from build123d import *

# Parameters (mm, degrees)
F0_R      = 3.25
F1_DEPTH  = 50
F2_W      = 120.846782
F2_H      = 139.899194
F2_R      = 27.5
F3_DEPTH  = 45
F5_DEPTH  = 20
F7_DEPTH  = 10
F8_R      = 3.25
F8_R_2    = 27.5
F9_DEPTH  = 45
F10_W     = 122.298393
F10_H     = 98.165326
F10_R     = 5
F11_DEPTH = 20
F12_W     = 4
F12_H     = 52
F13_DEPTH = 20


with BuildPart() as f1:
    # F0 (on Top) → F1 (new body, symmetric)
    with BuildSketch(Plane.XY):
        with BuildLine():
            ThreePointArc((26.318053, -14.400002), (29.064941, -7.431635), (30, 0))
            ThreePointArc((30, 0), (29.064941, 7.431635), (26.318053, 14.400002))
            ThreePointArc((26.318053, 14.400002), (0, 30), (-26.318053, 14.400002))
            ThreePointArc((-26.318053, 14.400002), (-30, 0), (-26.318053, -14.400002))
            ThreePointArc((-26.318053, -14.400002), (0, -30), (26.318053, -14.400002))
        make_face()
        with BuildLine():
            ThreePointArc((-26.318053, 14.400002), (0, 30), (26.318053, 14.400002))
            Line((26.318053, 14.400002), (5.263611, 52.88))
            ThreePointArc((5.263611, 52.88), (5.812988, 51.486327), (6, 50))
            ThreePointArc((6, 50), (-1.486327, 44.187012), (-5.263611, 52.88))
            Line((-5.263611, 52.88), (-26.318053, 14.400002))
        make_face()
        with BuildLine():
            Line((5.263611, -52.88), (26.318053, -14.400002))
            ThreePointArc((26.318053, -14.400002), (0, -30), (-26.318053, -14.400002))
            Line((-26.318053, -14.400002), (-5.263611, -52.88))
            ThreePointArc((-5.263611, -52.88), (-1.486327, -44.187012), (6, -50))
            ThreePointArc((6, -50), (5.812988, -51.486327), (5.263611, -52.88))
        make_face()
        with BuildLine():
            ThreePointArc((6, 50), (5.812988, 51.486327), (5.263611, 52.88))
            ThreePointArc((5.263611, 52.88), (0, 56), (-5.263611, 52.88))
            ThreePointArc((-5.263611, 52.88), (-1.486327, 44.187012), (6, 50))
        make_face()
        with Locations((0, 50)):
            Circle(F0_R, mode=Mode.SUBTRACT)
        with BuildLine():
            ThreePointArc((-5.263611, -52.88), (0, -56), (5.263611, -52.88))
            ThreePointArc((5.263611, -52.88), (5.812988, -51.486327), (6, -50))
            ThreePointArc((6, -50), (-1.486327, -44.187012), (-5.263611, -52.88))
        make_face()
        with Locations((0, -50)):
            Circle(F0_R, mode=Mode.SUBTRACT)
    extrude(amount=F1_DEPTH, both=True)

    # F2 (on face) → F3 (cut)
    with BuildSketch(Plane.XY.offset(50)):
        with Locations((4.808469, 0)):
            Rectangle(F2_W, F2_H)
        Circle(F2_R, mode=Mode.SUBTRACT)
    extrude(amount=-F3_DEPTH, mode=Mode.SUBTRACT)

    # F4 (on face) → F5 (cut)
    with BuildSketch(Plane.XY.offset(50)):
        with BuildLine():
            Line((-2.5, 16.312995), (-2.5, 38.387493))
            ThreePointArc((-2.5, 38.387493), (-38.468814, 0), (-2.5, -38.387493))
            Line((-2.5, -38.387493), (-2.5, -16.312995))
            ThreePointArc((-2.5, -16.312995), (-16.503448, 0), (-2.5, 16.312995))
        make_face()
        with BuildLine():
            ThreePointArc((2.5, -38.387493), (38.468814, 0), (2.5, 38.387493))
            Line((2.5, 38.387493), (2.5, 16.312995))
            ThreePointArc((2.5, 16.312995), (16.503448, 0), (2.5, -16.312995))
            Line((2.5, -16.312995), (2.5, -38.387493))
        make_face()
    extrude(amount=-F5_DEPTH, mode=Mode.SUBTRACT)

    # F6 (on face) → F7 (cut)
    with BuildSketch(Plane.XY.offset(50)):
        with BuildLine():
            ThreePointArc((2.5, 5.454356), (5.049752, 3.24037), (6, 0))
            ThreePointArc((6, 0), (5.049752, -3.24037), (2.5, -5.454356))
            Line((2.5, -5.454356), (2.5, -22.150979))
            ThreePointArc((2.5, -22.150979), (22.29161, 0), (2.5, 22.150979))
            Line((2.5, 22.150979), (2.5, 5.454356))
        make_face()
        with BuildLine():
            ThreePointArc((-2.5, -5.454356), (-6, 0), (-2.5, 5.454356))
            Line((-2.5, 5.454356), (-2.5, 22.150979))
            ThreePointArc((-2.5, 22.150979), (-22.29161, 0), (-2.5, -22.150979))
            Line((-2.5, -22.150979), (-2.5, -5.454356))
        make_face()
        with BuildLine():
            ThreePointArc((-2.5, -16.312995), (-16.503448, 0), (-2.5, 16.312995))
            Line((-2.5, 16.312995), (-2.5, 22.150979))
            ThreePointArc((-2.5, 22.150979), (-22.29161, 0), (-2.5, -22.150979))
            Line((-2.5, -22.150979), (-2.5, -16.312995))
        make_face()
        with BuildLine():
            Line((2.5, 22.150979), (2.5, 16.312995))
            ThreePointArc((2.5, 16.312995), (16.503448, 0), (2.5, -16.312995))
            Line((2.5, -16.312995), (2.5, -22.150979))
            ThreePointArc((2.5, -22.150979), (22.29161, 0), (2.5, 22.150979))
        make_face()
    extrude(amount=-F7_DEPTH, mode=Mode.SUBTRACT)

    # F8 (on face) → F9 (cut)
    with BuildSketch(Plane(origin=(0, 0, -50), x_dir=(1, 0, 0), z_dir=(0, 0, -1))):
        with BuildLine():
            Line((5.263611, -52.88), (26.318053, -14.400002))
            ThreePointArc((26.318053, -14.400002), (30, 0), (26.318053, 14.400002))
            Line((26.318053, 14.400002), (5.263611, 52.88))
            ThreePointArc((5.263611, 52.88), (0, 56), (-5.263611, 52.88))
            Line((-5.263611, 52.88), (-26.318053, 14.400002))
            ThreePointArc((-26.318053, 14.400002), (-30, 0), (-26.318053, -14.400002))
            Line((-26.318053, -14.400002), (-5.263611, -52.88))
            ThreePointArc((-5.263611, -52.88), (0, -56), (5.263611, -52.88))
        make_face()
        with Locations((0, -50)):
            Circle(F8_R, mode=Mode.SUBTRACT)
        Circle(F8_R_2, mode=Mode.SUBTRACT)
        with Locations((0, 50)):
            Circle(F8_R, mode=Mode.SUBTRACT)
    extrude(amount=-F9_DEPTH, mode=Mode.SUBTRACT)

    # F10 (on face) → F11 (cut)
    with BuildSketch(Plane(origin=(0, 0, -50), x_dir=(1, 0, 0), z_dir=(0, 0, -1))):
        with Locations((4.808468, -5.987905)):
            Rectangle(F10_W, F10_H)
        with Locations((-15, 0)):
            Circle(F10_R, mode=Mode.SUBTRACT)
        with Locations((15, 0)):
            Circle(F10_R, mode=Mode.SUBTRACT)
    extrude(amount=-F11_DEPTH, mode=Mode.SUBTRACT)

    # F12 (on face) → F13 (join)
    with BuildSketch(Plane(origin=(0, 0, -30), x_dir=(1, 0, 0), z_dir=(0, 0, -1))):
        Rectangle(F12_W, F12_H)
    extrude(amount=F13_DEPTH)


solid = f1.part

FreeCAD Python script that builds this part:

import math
import FreeCAD as App
import Part
import Sketcher

doc = App.newDocument("Part")
body = doc.addObject("PartDesign::Body", "Body")

# Sketch on XY plane
sketch1 = body.newObject("Sketcher::SketchObject", "Sketch")
sketch1.AttachmentSupport = (doc.getObject("XY_Plane"), [""])
sketch1.MapMode = "FlatFace"
sketch1.addGeometry([
    Part.ArcOfCircle(Part.Circle(App.Vector(0.000005, 0, 0), App.Vector(0, 0, 1), 29.999995), math.radians(-28.685411), math.radians(0)),  # 0
    Part.ArcOfCircle(Part.Circle(App.Vector(0.000005, 0, 0), App.Vector(0, 0, 1), 29.999995), math.radians(0), math.radians(28.685411)),  # 1
    Part.LineSegment(App.Vector(26.318053, 14.400002, 0), App.Vector(5.263611, 52.88, 0)),  # 2
    Part.ArcOfCircle(Part.Circle(App.Vector(0, 50, 0), App.Vector(0, 0, 1), 6), math.radians(28.685403), math.radians(151.314597)),  # 3
    Part.LineSegment(App.Vector(-5.263611, 52.88, 0), App.Vector(-26.318053, 14.400002, 0)),  # 4
    Part.ArcOfCircle(Part.Circle(App.Vector(-0.000004, 0, 0), App.Vector(0, 0, 1), 29.999996), math.radians(151.31459), math.radians(208.68541)),  # 5
    Part.LineSegment(App.Vector(-26.318053, -14.400002, 0), App.Vector(-5.263611, -52.88, 0)),  # 6
    Part.ArcOfCircle(Part.Circle(App.Vector(0, -50, 0), App.Vector(0, 0, 1), 6), math.radians(-151.314597), math.radians(-28.685403)),  # 7
    Part.LineSegment(App.Vector(5.263611, -52.88, 0), App.Vector(26.318053, -14.400002, 0)),  # 8
    Part.Circle(App.Vector(0, -50, 0), App.Vector(0, 0, 1), 3.25),  # 9
    Part.Circle(App.Vector(0, 50, 0), App.Vector(0, 0, 1), 3.25),  # 10
], False)
sketch1.addConstraint([
    Sketcher.Constraint("Tangent", 0, 2, 1, 1),
    Sketcher.Constraint("Tangent", 1, 2, 2, 1),
    Sketcher.Constraint("Tangent", 2, 2, 3, 1),
    Sketcher.Constraint("Tangent", 3, 2, 4, 1),
    Sketcher.Constraint("Tangent", 4, 2, 5, 1),
    Sketcher.Constraint("Tangent", 5, 2, 6, 1),
    Sketcher.Constraint("Tangent", 6, 2, 7, 1),
    Sketcher.Constraint("Tangent", 7, 2, 8, 1),
    Sketcher.Constraint("Tangent", 8, 2, 0, 1),
    Sketcher.Constraint("Coincident", 0, 3, -1, 1),
    Sketcher.Constraint("Coincident", 5, 3, -1, 1),
    Sketcher.Constraint("Coincident", 9, 3, 7, 3),
    Sketcher.Constraint("Coincident", 10, 3, 3, 3),
    Sketcher.Constraint("Equal", 0, 1),
    Sketcher.Constraint("Equal", 1, 5),
    Sketcher.Constraint("Equal", 3, 7),
    Sketcher.Constraint("Equal", 9, 10),
    Sketcher.Constraint("Symmetric", 3, 3, 7, 3, -1, 1),
    Sketcher.Constraint("PointOnObject", 3, 3, -2),
    Sketcher.Constraint("PointOnObject", 0, 2, -1),
    Sketcher.Constraint("Radius", 3, 6.0),
    Sketcher.Constraint("Diameter", 9, 6.5),
    Sketcher.Constraint("DistanceY", -1, 1, 3, 3, 50.0),
    Sketcher.Constraint("DistanceX", -1, 1, 0, 2, 30.0),
])
pad1 = body.newObject("PartDesign::Pad", "Pad")
pad1.Profile = sketch1
pad1.Length = 100
pad1.Midplane = True

# Sketch on XY plane
sketch2 = body.newObject("Sketcher::SketchObject", "Sketch001")
sketch2.AttachmentSupport = (doc.getObject("XY_Plane"), [""])
sketch2.MapMode = "FlatFace"
sketch2.AttachmentOffset = App.Placement(App.Vector(0, 0, 50), App.Rotation())
sketch2.addGeometry([
    Part.LineSegment(App.Vector(-55.614922, 69.949597, 0), App.Vector(-55.614922, -69.949597, 0)),  # 0
    Part.LineSegment(App.Vector(-55.614922, -69.949597, 0), App.Vector(65.23186, -69.949597, 0)),  # 1
    Part.LineSegment(App.Vector(65.23186, -69.949597, 0), App.Vector(65.23186, 69.949597, 0)),  # 2
    Part.LineSegment(App.Vector(65.23186, 69.949597, 0), App.Vector(-55.614922, 69.949597, 0)),  # 3
    Part.Circle(App.Vector(0, 0, 0), App.Vector(0, 0, 1), 27.5),  # 4
], False)
sketch2.addConstraint([
    Sketcher.Constraint("Coincident", 0, 2, 1, 1),
    Sketcher.Constraint("Coincident", 1, 2, 2, 1),
    Sketcher.Constraint("Coincident", 2, 2, 3, 1),
    Sketcher.Constraint("Coincident", 3, 2, 0, 1),
    Sketcher.Constraint("Vertical", 0),
    Sketcher.Constraint("Horizontal", 1),
    Sketcher.Constraint("Vertical", 2),
    Sketcher.Constraint("Horizontal", 3),
    Sketcher.Constraint("Coincident", 4, 3, -1, 1),
    Sketcher.Constraint("Diameter", 4, 55.0),
    Sketcher.Constraint("DistanceX", 1, 1, 1, 2, 120.846782),
    Sketcher.Constraint("DistanceY", 0, 2, 0, 1, 139.899194),
    Sketcher.Constraint("DistanceX", -1, 1, 1, 2, 65.23186),
    Sketcher.Constraint("DistanceY", 0, 2, -1, 1, 69.949597),
])
pocket1 = body.newObject("PartDesign::Pocket", "Pocket")
pocket1.Profile = sketch2
pocket1.Length = 45

# Sketch on XY plane
sketch3 = body.newObject("Sketcher::SketchObject", "Sketch002")
sketch3.AttachmentSupport = (doc.getObject("XY_Plane"), [""])
sketch3.MapMode = "FlatFace"
sketch3.AttachmentOffset = App.Placement(App.Vector(0, 0, 50), App.Rotation())
sketch3.addGeometry([
    Part.LineSegment(App.Vector(-2.5, 16.312995, 0), App.Vector(-2.5, 38.387493, 0)),  # 0
    Part.ArcOfCircle(Part.Circle(App.Vector(0, 0, 0), App.Vector(0, 0, 1), 38.468814), math.radians(93.726147), math.radians(266.273853)),  # 1
    Part.LineSegment(App.Vector(-2.5, -38.387493, 0), App.Vector(-2.5, -16.312995, 0)),  # 2
    Part.ArcOfCircle(Part.Circle(App.Vector(0, 0, 0), App.Vector(0, 0, 1), 16.503448), math.radians(98.712908), math.radians(261.287092)),  # 3
    Part.ArcOfCircle(Part.Circle(App.Vector(0, 0, 0), App.Vector(0, 0, 1), 38.468814), math.radians(-86.273853), math.radians(86.273853)),  # 4
    Part.LineSegment(App.Vector(2.5, 38.387493, 0), App.Vector(2.5, 16.312995, 0)),  # 5
    Part.ArcOfCircle(Part.Circle(App.Vector(0, 0, 0), App.Vector(0, 0, 1), 16.503448), math.radians(-81.287092), math.radians(81.287092)),  # 6
    Part.LineSegment(App.Vector(2.5, -16.312995, 0), App.Vector(2.5, -38.387493, 0)),  # 7
], False)
sketch3.addConstraint([
    Sketcher.Constraint("Coincident", 0, 2, 1, 1),
    Sketcher.Constraint("Coincident", 1, 2, 2, 1),
    Sketcher.Constraint("Coincident", 2, 2, 3, 2),
    Sketcher.Constraint("Coincident", 3, 1, 0, 1),
    Sketcher.Constraint("Coincident", 4, 2, 5, 1),
    Sketcher.Constraint("Coincident", 5, 2, 6, 2),
    Sketcher.Constraint("Coincident", 6, 1, 7, 1),
    Sketcher.Constraint("Coincident", 7, 2, 4, 1),
    Sketcher.Constraint("Vertical", 0),
    Sketcher.Constraint("Vertical", 2),
    Sketcher.Constraint("Vertical", 5),
    Sketcher.Constraint("Vertical", 7),
    Sketcher.Constraint("Coincident", 1, 3, -1, 1),
    Sketcher.Constraint("Coincident", 3, 3, -1, 1),
    Sketcher.Constraint("Coincident", 4, 3, -1, 1),
    Sketcher.Constraint("Coincident", 6, 3, -1, 1),
    Sketcher.Constraint("Equal", 1, 4),
    Sketcher.Constraint("Equal", 3, 6),
    Sketcher.Constraint("Horizontal", 0, 2, 4, 2),
    Sketcher.Constraint("Horizontal", 2, 2, 6, 1),
    Sketcher.Constraint("Vertical", 0, 2, 1, 2),
    Sketcher.Constraint("DistanceX", 0, 2, 4, 2, 5.0),
    Sketcher.Constraint("Radius", 3, 16.503448),
    Sketcher.Constraint("Radius", 1, 38.468814),
])
pocket2 = body.newObject("PartDesign::Pocket", "Pocket001")
pocket2.Profile = sketch3
pocket2.Length = 20

# Sketch on XY plane
sketch4 = body.newObject("Sketcher::SketchObject", "Sketch003")
sketch4.AttachmentSupport = (doc.getObject("XY_Plane"), [""])
sketch4.MapMode = "FlatFace"
sketch4.AttachmentOffset = App.Placement(App.Vector(0, 0, 50), App.Rotation())
sketch4.addGeometry([
    Part.ArcOfCircle(Part.Circle(App.Vector(-0.000003, -0.000002, 0), App.Vector(0, 0, 1), 6.000003), math.radians(0.000019), math.radians(65.375664)),  # 0
    Part.ArcOfCircle(Part.Circle(App.Vector(-0.000003, 0.000002, 0), App.Vector(0, 0, 1), 6.000003), math.radians(-65.375664), math.radians(-0.000019)),  # 1
    Part.LineSegment(App.Vector(2.5, -5.454356, 0), App.Vector(2.5, -22.150979, 0)),  # 2
    Part.ArcOfCircle(Part.Circle(App.Vector(0, 0, 0), App.Vector(0, 0, 1), 22.29161), math.radians(-83.560742), math.radians(83.560742)),  # 3
    Part.LineSegment(App.Vector(2.5, 22.150979, 0), App.Vector(2.5, 5.454356, 0)),  # 4
    Part.ArcOfCircle(Part.Circle(App.Vector(0, 0, 0), App.Vector(0, 0, 1), 6), math.radians(114.624318), math.radians(245.375682)),  # 5
    Part.LineSegment(App.Vector(-2.5, 5.454356, 0), App.Vector(-2.5, 22.150979, 0)),  # 6
    Part.ArcOfCircle(Part.Circle(App.Vector(0, 0, 0), App.Vector(0, 0, 1), 22.29161), math.radians(96.439258), math.radians(263.560742)),  # 7
    Part.LineSegment(App.Vector(-2.5, -22.150979, 0), App.Vector(-2.5, -5.454356, 0)),  # 8
], False)
sketch4.addConstraint([
    Sketcher.Constraint("Tangent", 0, 1, 1, 2),
    Sketcher.Constraint("Coincident", 1, 1, 2, 1),
    Sketcher.Constraint("Coincident", 2, 2, 3, 1),
    Sketcher.Constraint("Coincident", 3, 2, 4, 1),
    Sketcher.Constraint("Coincident", 4, 2, 0, 2),
    Sketcher.Constraint("Coincident", 5, 1, 6, 1),
    Sketcher.Constraint("Coincident", 6, 2, 7, 1),
    Sketcher.Constraint("Coincident", 7, 2, 8, 1),
    Sketcher.Constraint("Coincident", 8, 2, 5, 2),
    Sketcher.Constraint("Vertical", 2),
    Sketcher.Constraint("Vertical", 4),
    Sketcher.Constraint("Vertical", 6),
    Sketcher.Constraint("Vertical", 8),
    Sketcher.Constraint("Coincident", 0, 3, -1, 1),
    Sketcher.Constraint("Coincident", 3, 3, -1, 1),
    Sketcher.Constraint("Coincident", 5, 3, -1, 1),
    Sketcher.Constraint("Coincident", 7, 3, -1, 1),
    Sketcher.Constraint("Equal", 0, 1),
    Sketcher.Constraint("Equal", 3, 7),
    Sketcher.Constraint("Symmetric", 1, 1, 5, 1, -1, 1),
    Sketcher.Constraint("PointOnObject", 0, 1, -1),
    Sketcher.Constraint("Horizontal", 4, 2, 5, 1),
    Sketcher.Constraint("Horizontal", 2, 2, 7, 2),
    Sketcher.Constraint("Radius", 5, 6.0),
    Sketcher.Constraint("DistanceX", 5, 1, 4, 2, 5.0),
    Sketcher.Constraint("Radius", 3, 22.29161),
])
pocket3 = body.newObject("PartDesign::Pocket", "Pocket002")
pocket3.Profile = sketch4
pocket3.Length = 10

# Sketch on XY plane
sketch5 = body.newObject("Sketcher::SketchObject", "Sketch004")
sketch5.AttachmentSupport = (doc.getObject("XY_Plane"), [""])
sketch5.MapMode = "FlatFace"
sketch5.AttachmentOffset = App.Placement(App.Vector(0, 0, -50), App.Rotation())
sketch5.addGeometry([
    Part.LineSegment(App.Vector(5.263611, 52.88, 0), App.Vector(26.318053, 14.400002, 0)),  # 0
    Part.ArcOfCircle(Part.Circle(App.Vector(0.000004, 0, 0), App.Vector(0, 0, 1), 29.999996), math.radians(-28.68541), math.radians(28.68541)),  # 1
    Part.LineSegment(App.Vector(26.318053, -14.400002, 0), App.Vector(5.263611, -52.88, 0)),  # 2
    Part.ArcOfCircle(Part.Circle(App.Vector(0, -50, 0), App.Vector(0, 0, 1), 6), math.radians(-151.314597), math.radians(-28.685403)),  # 3
    Part.LineSegment(App.Vector(-5.263611, -52.88, 0), App.Vector(-26.318053, -14.400002, 0)),  # 4
    Part.ArcOfCircle(Part.Circle(App.Vector(-0.000004, 0, 0), App.Vector(0, 0, 1), 29.999996), math.radians(151.31459), math.radians(208.68541)),  # 5
    Part.LineSegment(App.Vector(-26.318053, 14.400002, 0), App.Vector(-5.263611, 52.88, 0)),  # 6
    Part.ArcOfCircle(Part.Circle(App.Vector(0, 50, 0), App.Vector(0, 0, 1), 6), math.radians(28.685403), math.radians(151.314597)),  # 7
    Part.Circle(App.Vector(0, 50, 0), App.Vector(0, 0, 1), 3.25),  # 8
    Part.Circle(App.Vector(0, 0, 0), App.Vector(0, 0, 1), 27.5),  # 9
    Part.Circle(App.Vector(0, -50, 0), App.Vector(0, 0, 1), 3.25),  # 10
], False)
sketch5.addConstraint([
    Sketcher.Constraint("Tangent", 0, 2, 1, 2),
    Sketcher.Constraint("Tangent", 1, 1, 2, 1),
    Sketcher.Constraint("Tangent", 2, 2, 3, 2),
    Sketcher.Constraint("Tangent", 3, 1, 4, 1),
    Sketcher.Constraint("Tangent", 4, 2, 5, 2),
    Sketcher.Constraint("Tangent", 5, 1, 6, 1),
    Sketcher.Constraint("Tangent", 6, 2, 7, 2),
    Sketcher.Constraint("Tangent", 7, 1, 0, 1),
    Sketcher.Constraint("Coincident", 1, 3, -1, 1),
    Sketcher.Constraint("Coincident", 5, 3, -1, 1),
    Sketcher.Constraint("Coincident", 9, 3, -1, 1),
    Sketcher.Constraint("Coincident", 8, 3, 7, 3),
    Sketcher.Constraint("Coincident", 10, 3, 3, 3),
    Sketcher.Constraint("Equal", 1, 5),
    Sketcher.Constraint("Equal", 3, 7),
    Sketcher.Constraint("Equal", 8, 10),
    Sketcher.Constraint("Symmetric", 3, 3, 7, 3, -1, 1),
    Sketcher.Constraint("PointOnObject", 3, 3, -2),
    Sketcher.Constraint("Diameter", 9, 55.0),
    Sketcher.Constraint("Radius", 3, 6.0),
    Sketcher.Constraint("Diameter", 8, 6.5),
    Sketcher.Constraint("DistanceY", 3, 3, -1, 1, 50.0),
    Sketcher.Constraint("DistanceY", 1, 1, -1, 1, 14.400002),
])
pocket4 = body.newObject("PartDesign::Pocket", "Pocket003")
pocket4.Profile = sketch5
pocket4.Length = 45
pocket4.Reversed = True

# Sketch on XY plane
sketch6 = body.newObject("Sketcher::SketchObject", "Sketch005")
sketch6.AttachmentSupport = (doc.getObject("XY_Plane"), [""])
sketch6.MapMode = "FlatFace"
sketch6.AttachmentOffset = App.Placement(App.Vector(0, 0, -50), App.Rotation())
sketch6.addGeometry([
    Part.LineSegment(App.Vector(-56.340728, -43.094758, 0), App.Vector(-56.340728, 55.070568, 0)),  # 0
    Part.LineSegment(App.Vector(-56.340728, 55.070568, 0), App.Vector(65.957665, 55.070568, 0)),  # 1
    Part.LineSegment(App.Vector(65.957665, 55.070568, 0), App.Vector(65.957665, -43.094758, 0)),  # 2
    Part.LineSegment(App.Vector(65.957665, -43.094758, 0), App.Vector(-56.340728, -43.094758, 0)),  # 3
    Part.Circle(App.Vector(-15, 0, 0), App.Vector(0, 0, 1), 5),  # 4
    Part.Circle(App.Vector(15, 0, 0), App.Vector(0, 0, 1), 5),  # 5
], False)
sketch6.addConstraint([
    Sketcher.Constraint("Coincident", 0, 2, 1, 1),
    Sketcher.Constraint("Coincident", 1, 2, 2, 1),
    Sketcher.Constraint("Coincident", 2, 2, 3, 1),
    Sketcher.Constraint("Coincident", 3, 2, 0, 1),
    Sketcher.Constraint("Vertical", 0),
    Sketcher.Constraint("Horizontal", 1),
    Sketcher.Constraint("Vertical", 2),
    Sketcher.Constraint("Horizontal", 3),
    Sketcher.Constraint("Equal", 4, 5),
    Sketcher.Constraint("Symmetric", 4, 3, 5, 3, -1, 1),
    Sketcher.Constraint("PointOnObject", 4, 3, -1),
    Sketcher.Constraint("Diameter", 4, 10.0),
    Sketcher.Constraint("DistanceX", 4, 3, -1, 1, 15.0),
    Sketcher.Constraint("DistanceX", 1, 1, 1, 2, 122.298393),
    Sketcher.Constraint("DistanceY", 0, 1, 0, 2, 98.165326),
    Sketcher.Constraint("DistanceX", 0, 2, -1, 1, 56.340728),
    Sketcher.Constraint("DistanceY", -1, 1, 0, 2, 55.070568),
])
pocket5 = body.newObject("PartDesign::Pocket", "Pocket004")
pocket5.Profile = sketch6
pocket5.Length = 20
pocket5.Reversed = True

# Sketch on XY plane
sketch7 = body.newObject("Sketcher::SketchObject", "Sketch006")
sketch7.AttachmentSupport = (doc.getObject("XY_Plane"), [""])
sketch7.MapMode = "FlatFace"
sketch7.AttachmentOffset = App.Placement(App.Vector(0, 0, -30), App.Rotation())
sketch7.addGeometry([
    Part.LineSegment(App.Vector(-2, -26, 0), App.Vector(-2, 26, 0)),
    Part.LineSegment(App.Vector(-2, 26, 0), App.Vector(2, 26, 0)),
    Part.LineSegment(App.Vector(2, 26, 0), App.Vector(2, -26, 0)),
    Part.LineSegment(App.Vector(2, -26, 0), App.Vector(-2, -26, 0)),
], False)
sketch7.addConstraint([
    Sketcher.Constraint("Coincident", 0, 2, 1, 1),
    Sketcher.Constraint("Coincident", 1, 2, 2, 1),
    Sketcher.Constraint("Coincident", 2, 2, 3, 1),
    Sketcher.Constraint("Coincident", 3, 2, 0, 1),
    Sketcher.Constraint("Vertical", 0),
    Sketcher.Constraint("Horizontal", 1),
    Sketcher.Constraint("Vertical", 2),
    Sketcher.Constraint("Horizontal", 3),
    Sketcher.Constraint("Symmetric", 0, 2, 2, 2, -1, 1),
    Sketcher.Constraint("DistanceX", 1, 1, 1, 2, 4.0),
    Sketcher.Constraint("DistanceY", 0, 1, 0, 2, 52.0),
])
pad2 = body.newObject("PartDesign::Pad", "Pad001")
pad2.Profile = sketch7
pad2.Length = 20
pad2.Reversed = True

doc.recompute()
